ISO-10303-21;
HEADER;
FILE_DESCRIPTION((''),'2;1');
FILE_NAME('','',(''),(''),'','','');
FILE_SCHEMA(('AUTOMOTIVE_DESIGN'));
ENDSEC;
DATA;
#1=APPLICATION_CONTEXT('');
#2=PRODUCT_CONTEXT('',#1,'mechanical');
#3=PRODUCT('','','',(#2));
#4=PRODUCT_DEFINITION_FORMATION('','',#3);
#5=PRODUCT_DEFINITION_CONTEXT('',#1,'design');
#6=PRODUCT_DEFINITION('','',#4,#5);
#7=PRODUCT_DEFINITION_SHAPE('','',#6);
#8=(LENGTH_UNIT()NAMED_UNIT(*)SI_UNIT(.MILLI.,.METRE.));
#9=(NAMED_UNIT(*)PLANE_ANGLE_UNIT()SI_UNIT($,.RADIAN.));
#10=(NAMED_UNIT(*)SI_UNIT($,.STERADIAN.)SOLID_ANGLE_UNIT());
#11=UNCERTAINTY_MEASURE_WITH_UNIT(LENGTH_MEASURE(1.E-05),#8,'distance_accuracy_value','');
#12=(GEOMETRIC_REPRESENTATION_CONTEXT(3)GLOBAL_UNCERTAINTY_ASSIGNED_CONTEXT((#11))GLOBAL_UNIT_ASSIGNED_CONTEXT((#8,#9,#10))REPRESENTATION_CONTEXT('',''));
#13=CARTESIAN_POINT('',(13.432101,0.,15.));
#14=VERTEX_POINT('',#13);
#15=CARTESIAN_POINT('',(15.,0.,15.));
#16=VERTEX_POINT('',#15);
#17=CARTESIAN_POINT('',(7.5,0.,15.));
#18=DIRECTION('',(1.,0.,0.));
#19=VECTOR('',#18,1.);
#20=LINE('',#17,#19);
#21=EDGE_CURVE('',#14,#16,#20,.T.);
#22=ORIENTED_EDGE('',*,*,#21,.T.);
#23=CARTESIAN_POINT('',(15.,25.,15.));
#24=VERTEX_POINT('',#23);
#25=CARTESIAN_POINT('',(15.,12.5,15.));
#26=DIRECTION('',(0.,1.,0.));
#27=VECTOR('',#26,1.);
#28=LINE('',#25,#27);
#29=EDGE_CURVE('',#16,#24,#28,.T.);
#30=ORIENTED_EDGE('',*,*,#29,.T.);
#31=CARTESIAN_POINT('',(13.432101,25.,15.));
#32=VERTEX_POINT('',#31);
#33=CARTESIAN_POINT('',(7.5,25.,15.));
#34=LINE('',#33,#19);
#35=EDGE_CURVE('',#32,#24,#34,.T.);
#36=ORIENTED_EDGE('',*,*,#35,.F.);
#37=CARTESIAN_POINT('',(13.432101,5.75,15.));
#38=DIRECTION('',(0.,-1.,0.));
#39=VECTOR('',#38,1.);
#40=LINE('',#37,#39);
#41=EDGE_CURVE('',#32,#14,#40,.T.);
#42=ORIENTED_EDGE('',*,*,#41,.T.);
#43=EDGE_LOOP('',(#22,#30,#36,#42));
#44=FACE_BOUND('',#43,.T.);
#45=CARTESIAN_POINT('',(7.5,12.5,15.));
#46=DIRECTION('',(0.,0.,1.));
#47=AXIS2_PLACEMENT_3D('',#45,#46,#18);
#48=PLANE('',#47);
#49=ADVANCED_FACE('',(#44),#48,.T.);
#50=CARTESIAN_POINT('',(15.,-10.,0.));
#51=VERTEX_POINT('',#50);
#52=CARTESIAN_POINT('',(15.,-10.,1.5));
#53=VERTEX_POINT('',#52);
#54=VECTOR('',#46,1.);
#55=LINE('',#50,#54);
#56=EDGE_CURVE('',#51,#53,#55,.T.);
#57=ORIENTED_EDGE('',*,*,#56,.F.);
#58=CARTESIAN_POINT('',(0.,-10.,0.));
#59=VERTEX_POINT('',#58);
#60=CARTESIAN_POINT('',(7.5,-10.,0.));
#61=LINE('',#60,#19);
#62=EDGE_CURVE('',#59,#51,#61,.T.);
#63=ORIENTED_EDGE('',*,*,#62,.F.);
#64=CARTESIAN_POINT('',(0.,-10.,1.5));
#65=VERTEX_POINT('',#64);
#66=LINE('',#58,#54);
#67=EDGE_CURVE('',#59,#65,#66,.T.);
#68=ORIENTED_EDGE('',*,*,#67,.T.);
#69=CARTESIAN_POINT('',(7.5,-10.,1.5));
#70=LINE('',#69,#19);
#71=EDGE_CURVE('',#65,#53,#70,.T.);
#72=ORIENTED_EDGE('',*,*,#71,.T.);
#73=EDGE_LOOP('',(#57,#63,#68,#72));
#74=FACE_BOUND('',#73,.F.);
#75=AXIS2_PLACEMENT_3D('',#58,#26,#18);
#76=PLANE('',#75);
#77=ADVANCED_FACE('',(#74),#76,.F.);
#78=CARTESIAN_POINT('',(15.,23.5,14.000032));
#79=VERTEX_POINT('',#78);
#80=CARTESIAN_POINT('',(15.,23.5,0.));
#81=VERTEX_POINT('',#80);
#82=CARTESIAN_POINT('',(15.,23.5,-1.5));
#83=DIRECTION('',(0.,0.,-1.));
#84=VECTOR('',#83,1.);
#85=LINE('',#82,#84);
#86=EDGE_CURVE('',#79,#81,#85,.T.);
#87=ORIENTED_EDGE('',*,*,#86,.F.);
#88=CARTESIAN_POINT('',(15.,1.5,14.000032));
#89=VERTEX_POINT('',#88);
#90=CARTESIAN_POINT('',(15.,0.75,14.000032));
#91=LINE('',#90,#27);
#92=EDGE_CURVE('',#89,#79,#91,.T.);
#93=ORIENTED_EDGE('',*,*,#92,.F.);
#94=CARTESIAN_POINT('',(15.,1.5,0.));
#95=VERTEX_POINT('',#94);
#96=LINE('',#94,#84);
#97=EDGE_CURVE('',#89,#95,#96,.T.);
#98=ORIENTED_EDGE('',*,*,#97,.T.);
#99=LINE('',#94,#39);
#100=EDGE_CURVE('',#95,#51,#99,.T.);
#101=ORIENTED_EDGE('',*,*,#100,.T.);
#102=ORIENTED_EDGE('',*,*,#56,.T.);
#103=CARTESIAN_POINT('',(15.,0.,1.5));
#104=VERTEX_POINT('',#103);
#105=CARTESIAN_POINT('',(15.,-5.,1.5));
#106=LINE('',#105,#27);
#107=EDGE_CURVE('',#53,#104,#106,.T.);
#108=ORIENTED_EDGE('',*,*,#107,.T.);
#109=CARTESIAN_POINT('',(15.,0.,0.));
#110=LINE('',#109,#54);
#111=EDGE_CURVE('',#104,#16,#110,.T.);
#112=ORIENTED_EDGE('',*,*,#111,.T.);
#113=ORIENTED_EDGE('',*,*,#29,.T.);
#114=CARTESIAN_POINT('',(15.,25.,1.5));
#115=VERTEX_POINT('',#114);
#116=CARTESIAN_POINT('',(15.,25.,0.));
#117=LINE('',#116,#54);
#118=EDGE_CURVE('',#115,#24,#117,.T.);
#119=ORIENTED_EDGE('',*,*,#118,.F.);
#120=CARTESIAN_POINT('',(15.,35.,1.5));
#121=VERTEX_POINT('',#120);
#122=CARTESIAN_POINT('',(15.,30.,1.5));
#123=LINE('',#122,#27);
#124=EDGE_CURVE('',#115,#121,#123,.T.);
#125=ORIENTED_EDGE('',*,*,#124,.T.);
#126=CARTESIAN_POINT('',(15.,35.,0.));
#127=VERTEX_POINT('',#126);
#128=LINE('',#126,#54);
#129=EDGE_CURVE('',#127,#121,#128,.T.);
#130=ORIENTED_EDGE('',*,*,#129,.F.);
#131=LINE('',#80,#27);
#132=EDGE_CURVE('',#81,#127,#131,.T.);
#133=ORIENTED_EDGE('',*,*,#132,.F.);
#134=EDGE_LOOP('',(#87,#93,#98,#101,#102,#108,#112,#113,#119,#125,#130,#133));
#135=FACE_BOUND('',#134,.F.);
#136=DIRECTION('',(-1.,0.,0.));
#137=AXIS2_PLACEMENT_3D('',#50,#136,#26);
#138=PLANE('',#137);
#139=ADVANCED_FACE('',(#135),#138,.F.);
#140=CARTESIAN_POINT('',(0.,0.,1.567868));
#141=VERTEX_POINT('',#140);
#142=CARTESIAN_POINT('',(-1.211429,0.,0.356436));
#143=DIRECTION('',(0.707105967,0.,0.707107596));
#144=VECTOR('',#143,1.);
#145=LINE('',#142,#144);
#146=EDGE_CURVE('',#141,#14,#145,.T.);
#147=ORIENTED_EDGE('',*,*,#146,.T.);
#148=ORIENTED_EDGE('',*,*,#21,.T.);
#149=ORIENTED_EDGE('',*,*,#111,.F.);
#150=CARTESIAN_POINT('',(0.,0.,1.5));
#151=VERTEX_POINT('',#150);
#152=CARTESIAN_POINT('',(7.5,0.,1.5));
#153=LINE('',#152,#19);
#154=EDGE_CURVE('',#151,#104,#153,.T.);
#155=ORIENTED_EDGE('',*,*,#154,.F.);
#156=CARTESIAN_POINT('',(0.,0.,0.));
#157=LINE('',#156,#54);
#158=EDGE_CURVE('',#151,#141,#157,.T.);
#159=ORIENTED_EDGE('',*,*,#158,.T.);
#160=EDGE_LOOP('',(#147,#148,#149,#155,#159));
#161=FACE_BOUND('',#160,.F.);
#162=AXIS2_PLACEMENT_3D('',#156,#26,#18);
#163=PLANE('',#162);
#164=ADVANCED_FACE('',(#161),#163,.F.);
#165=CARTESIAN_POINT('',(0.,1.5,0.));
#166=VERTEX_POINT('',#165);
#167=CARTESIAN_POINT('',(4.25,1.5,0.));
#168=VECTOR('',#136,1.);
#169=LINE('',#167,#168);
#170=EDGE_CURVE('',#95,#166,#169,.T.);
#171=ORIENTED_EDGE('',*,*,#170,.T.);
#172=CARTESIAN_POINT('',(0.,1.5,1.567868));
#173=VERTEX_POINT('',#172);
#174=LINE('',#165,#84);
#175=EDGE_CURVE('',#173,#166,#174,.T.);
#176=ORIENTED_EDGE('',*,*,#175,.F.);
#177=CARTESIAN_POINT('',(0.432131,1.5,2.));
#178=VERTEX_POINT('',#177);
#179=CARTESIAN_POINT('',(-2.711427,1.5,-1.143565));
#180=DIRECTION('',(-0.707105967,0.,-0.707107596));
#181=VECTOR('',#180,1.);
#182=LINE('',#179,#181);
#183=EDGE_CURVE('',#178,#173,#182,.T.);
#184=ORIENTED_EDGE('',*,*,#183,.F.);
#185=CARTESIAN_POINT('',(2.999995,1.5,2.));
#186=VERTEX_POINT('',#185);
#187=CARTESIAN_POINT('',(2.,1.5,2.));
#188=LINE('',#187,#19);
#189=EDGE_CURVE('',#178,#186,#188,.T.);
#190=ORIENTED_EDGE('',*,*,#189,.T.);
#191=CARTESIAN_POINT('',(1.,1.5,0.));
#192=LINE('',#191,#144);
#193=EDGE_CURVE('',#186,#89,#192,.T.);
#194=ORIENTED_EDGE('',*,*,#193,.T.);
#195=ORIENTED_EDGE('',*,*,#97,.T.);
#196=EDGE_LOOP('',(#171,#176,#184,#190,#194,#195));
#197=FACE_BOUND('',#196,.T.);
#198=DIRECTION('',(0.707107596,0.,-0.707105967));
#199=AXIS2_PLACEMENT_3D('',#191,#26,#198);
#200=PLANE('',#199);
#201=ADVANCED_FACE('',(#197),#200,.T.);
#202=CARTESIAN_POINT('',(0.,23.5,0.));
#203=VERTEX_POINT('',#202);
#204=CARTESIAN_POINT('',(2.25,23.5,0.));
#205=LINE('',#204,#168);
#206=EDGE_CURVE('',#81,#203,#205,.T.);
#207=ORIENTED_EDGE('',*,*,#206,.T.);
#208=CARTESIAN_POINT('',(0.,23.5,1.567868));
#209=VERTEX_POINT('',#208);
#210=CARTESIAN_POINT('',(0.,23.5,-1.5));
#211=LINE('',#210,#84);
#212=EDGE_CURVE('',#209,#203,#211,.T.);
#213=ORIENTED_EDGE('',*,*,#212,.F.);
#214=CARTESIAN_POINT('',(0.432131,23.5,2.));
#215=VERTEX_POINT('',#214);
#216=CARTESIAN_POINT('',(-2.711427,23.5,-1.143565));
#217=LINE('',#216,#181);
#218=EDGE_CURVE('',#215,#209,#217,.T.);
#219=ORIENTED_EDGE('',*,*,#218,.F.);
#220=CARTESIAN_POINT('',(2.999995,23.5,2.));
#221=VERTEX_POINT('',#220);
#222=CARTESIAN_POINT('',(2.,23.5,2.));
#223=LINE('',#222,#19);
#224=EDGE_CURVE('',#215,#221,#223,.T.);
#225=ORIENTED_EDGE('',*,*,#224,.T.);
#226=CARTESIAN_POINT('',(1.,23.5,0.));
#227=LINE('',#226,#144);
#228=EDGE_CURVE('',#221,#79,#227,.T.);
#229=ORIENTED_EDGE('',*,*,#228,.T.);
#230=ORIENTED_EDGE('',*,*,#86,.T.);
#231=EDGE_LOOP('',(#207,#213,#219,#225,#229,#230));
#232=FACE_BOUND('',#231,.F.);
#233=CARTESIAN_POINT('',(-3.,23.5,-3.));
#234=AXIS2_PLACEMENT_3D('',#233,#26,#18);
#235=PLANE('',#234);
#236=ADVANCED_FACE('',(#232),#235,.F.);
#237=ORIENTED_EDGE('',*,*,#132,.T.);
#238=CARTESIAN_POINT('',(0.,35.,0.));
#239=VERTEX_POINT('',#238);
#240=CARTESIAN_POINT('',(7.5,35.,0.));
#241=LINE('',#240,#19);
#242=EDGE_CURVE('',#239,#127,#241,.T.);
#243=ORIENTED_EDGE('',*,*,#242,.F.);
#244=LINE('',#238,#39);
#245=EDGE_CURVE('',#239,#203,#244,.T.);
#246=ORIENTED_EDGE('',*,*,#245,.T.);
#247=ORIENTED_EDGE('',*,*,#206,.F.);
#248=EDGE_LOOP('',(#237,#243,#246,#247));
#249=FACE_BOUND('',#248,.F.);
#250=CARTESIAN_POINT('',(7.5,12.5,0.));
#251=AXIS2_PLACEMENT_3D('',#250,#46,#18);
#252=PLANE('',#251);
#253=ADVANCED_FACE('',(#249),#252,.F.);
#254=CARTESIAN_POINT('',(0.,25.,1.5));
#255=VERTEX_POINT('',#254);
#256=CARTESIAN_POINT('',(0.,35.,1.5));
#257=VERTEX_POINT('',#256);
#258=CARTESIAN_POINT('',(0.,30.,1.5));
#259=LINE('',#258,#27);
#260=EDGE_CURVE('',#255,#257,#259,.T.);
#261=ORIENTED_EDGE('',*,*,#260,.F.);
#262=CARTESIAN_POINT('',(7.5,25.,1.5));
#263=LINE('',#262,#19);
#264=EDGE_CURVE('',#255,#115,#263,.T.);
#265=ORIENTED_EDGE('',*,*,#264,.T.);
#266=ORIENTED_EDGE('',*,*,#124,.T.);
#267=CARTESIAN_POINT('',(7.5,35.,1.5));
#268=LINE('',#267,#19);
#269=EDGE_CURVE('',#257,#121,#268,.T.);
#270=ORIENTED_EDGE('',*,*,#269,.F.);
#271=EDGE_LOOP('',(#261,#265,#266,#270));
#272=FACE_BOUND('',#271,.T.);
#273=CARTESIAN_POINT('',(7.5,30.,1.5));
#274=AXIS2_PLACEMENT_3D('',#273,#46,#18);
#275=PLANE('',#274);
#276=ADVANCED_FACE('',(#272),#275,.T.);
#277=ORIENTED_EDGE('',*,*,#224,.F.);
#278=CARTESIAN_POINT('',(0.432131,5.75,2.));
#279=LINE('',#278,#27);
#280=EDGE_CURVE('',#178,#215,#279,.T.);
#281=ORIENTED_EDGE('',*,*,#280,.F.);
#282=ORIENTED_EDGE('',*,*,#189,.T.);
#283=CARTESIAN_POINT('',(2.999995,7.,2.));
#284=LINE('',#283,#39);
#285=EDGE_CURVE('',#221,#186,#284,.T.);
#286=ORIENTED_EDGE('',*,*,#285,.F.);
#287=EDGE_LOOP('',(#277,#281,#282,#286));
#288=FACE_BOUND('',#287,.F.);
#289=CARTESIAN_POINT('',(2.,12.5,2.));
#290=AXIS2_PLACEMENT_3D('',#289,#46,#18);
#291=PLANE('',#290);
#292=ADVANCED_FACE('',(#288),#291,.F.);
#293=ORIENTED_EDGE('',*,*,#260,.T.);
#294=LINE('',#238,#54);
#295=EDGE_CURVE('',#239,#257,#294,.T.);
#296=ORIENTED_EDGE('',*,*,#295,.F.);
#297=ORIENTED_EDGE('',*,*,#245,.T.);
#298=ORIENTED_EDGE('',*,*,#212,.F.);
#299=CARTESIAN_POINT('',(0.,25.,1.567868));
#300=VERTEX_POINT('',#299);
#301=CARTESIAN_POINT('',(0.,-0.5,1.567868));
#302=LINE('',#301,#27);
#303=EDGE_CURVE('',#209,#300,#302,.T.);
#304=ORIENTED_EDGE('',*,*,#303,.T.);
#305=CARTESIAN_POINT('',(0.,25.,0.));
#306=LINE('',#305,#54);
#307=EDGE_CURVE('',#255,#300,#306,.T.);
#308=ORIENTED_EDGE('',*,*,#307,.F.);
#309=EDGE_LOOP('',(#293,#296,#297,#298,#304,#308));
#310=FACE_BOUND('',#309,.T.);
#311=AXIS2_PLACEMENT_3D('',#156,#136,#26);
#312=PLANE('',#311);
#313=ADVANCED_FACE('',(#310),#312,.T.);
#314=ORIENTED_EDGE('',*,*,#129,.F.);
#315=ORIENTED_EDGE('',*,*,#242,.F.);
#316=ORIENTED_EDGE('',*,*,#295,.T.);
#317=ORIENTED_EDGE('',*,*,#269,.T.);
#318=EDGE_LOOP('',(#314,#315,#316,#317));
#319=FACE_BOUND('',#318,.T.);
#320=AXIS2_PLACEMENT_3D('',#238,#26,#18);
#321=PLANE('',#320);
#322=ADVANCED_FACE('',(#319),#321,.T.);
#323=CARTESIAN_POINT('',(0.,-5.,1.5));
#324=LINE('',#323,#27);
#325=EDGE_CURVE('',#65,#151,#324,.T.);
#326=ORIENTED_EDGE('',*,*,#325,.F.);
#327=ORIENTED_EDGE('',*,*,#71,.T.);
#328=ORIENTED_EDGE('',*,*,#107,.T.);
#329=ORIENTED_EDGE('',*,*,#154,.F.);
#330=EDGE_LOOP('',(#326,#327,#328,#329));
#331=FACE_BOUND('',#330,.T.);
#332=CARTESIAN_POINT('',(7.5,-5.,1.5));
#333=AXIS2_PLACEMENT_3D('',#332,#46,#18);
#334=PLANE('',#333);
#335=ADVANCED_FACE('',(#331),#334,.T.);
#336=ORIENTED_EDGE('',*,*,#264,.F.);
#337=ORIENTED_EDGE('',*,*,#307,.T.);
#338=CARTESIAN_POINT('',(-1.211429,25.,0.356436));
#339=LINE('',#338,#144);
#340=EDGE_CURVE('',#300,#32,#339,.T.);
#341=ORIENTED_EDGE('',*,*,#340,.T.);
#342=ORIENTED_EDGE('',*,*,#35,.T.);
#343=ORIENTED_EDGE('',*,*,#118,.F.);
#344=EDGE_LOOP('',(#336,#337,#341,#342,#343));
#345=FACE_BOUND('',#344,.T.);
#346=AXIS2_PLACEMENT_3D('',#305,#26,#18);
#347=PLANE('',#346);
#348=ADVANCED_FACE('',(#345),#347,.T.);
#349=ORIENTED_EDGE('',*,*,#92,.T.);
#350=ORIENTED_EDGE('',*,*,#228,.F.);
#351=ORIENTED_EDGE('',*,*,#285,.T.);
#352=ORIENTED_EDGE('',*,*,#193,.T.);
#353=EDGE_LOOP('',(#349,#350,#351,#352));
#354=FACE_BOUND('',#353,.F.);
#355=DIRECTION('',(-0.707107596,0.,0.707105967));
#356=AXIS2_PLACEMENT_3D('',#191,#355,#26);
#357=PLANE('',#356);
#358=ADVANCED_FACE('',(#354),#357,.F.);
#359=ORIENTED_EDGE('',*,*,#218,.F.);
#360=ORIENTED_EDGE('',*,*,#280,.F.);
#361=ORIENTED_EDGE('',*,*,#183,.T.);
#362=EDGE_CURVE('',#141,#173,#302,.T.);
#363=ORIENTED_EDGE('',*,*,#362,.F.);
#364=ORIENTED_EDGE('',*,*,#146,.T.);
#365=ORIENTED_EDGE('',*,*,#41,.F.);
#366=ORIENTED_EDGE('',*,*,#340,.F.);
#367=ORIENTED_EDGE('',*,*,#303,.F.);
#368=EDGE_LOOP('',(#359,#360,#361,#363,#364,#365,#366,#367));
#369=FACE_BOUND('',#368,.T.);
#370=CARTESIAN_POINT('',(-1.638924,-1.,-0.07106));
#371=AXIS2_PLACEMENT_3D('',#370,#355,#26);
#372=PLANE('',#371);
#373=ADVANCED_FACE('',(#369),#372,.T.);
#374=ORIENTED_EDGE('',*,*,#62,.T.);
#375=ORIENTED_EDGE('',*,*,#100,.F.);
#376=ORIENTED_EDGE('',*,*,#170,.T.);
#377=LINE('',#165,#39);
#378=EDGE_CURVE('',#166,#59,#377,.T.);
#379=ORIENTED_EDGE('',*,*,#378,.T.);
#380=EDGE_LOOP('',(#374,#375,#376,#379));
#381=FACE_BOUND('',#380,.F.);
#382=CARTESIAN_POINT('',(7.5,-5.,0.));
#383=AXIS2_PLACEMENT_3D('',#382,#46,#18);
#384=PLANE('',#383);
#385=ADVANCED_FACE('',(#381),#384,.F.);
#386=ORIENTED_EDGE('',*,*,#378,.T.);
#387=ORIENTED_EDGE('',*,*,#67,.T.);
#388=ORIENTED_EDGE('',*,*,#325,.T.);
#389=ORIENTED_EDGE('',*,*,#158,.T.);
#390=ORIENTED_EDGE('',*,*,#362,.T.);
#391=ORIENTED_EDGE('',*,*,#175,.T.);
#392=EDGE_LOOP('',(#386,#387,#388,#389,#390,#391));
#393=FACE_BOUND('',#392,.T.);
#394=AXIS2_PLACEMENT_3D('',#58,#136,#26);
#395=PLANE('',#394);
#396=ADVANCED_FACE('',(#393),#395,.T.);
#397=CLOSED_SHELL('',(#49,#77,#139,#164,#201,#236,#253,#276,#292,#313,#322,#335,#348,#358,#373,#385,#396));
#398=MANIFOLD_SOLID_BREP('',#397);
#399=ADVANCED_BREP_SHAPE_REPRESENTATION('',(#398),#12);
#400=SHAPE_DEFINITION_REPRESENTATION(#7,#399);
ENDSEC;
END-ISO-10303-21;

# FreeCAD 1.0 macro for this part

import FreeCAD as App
import Part
import Sketcher


def add_polygon(sketch, points):
    """Adds a closed chain of lines whose ends are joined by coincident constraints."""
    first, n = sketch.GeometryCount, len(points)
    for a, b in zip(points, points[1:] + points[:1]):
        sketch.addGeometry(Part.LineSegment(App.Vector(*a, 0), App.Vector(*b, 0)), False)
    for i in range(n):
        sketch.addConstraint(Sketcher.Constraint("Coincident", first + i, 2, first + (i + 1) % n, 1))

doc = App.newDocument("Part")
body = doc.addObject("PartDesign::Body", "Body")

# Sketch on XY plane
sketch1 = body.newObject("Sketcher::SketchObject", "Sketch")
sketch1.AttachmentSupport = (doc.getObject("XY_Plane"), [""])
sketch1.MapMode = "FlatFace"
sketch1.AttachmentOffset = App.Placement(App.Vector(0, 0, -3), App.Rotation())
add_polygon(sketch1, [(-3, 23.5), (-3, 1.5), (7, 1.5), (7, 23.5)])  # lines 0-3
sketch1.addConstraint([
    Sketcher.Constraint("Vertical", 0),
    Sketcher.Constraint("Horizontal", 1),
    Sketcher.Constraint("Vertical", 2),
    Sketcher.Constraint("Horizontal", 3),
    Sketcher.Constraint("DistanceX", 1, 1, 1, 2, 10.0),
    Sketcher.Constraint("DistanceY", 0, 2, 0, 1, 22.0),
    Sketcher.Constraint("DistanceX", 0, 2, -1, 1, 3.0),
    Sketcher.Constraint("DistanceY", -1, 1, 0, 2, 1.5),
])
pad1 = body.newObject("PartDesign::Pad", "Pad")
pad1.Profile = sketch1
pad1.Length = 5
body2 = doc.addObject("PartDesign::Body", "Body001")

# Sketch on XY plane
sketch2 = body2.newObject("Sketcher::SketchObject", "Sketch001")
sketch2.AttachmentSupport = (doc.getObject("XY_Plane001"), [""])
sketch2.MapMode = "FlatFace"
add_polygon(sketch2, [(0, 22), (0, 0), (10, 0), (10, 22)])  # lines 0-3
sketch2.addConstraint([
    Sketcher.Constraint("Vertical", 0),
    Sketcher.Constraint("Horizontal", 1),
    Sketcher.Constraint("Vertical", 2),
    Sketcher.Constraint("Horizontal", 3),
    Sketcher.Constraint("Coincident", 0, 2, -1, 1),
    Sketcher.Constraint("DistanceX", 1, 1, 1, 2, 10.0),
    Sketcher.Constraint("DistanceY", 0, 2, 0, 1, 22.0),
])
pad2 = body2.newObject("PartDesign::Pad", "Pad001")
pad2.Profile = sketch2
pad2.Length = 20
body3 = doc.addObject("PartDesign::Body", "Body002")
doc.recompute()

body2.Placement = App.Placement(App.Vector(0, 0, 0), App.Rotation(App.Vector(0, 1, 0), 44.999934))
boolean = body3.newObject("PartDesign::Boolean", "Boolean")
boolean.Type = "Fuse"
boolean.addObjects([body2])
body4 = doc.addObject("PartDesign::Body", "Body003")
doc.recompute()

body3.Placement = App.Placement(App.Vector(1, 1.5, 0), App.Rotation(App.Vector(0, 0, 1), 0))
boolean2 = body4.newObject("PartDesign::Boolean", "Boolean001")
boolean2.Type = "Fuse"
boolean2.addObjects([body3])
body5 = doc.addObject("PartDesign::Body", "Body004")

# Sketch on XY plane
sketch3 = body5.newObject("Sketcher::SketchObject", "Sketch002")
sketch3.AttachmentSupport = (doc.getObject("XY_Plane004"), [""])
sketch3.MapMode = "FlatFace"
add_polygon(sketch3, [(0, 27), (0, 0), (10, 0), (10, 27)])  # lines 0-3
sketch3.addConstraint([
    Sketcher.Constraint("Vertical", 0),
    Sketcher.Constraint("Horizontal", 1),
    Sketcher.Constraint("Vertical", 2),
    Sketcher.Constraint("Horizontal", 3),
    Sketcher.Constraint("Coincident", 0, 2, -1, 1),
    Sketcher.Constraint("DistanceX", 1, 1, 1, 2, 10.0),
    Sketcher.Constraint("DistanceY", 0, 2, 0, 1, 27.0),
])
pad3 = body5.newObject("PartDesign::Pad", "Pad002")
pad3.Profile = sketch3
pad3.Length = 22
body6 = doc.addObject("PartDesign::Body", "Body005")
doc.recompute()

body5.Placement = App.Placement(App.Vector(0, 0, 0), App.Rotation(App.Vector(0, 1, 0), 44.999934))
boolean3 = body6.newObject("PartDesign::Boolean", "Boolean002")
boolean3.Type = "Fuse"
boolean3.addObjects([body5])
body7 = doc.addObject("PartDesign::Body", "Body006")
doc.recompute()

body6.Placement = App.Placement(App.Vector(-8.71, -1, 7), App.Rotation(App.Vector(0, 0, 1), 0))
boolean4 = body7.newObject("PartDesign::Boolean", "Boolean003")
boolean4.Type = "Fuse"
boolean4.addObjects([body6])
doc.recompute()

boolean5 = body7.newObject("PartDesign::Boolean", "Boolean004")
boolean5.Type = "Fuse"
boolean5.addObjects([body])
doc.recompute()

boolean6 = body7.newObject("PartDesign::Boolean", "Boolean005")
boolean6.Type = "Fuse"
boolean6.addObjects([body4])
body8 = doc.addObject("PartDesign::Body", "Body007")

# Sketch on XY plane
sketch4 = body8.newObject("Sketcher::SketchObject", "Sketch003")
sketch4.AttachmentSupport = (doc.getObject("XY_Plane007"), [""])
sketch4.MapMode = "FlatFace"
add_polygon(sketch4, [(0, 25), (0, 0), (15, 0), (15, 25)])  # lines 0-3
sketch4.addConstraint([
    Sketcher.Constraint("Vertical", 0),
    Sketcher.Constraint("Horizontal", 1),
    Sketcher.Constraint("Vertical", 2),
    Sketcher.Constraint("Horizontal", 3),
    Sketcher.Constraint("Coincident", 0, 2, -1, 1),
    Sketcher.Constraint("DistanceX", 1, 1, 1, 2, 15.0),
    Sketcher.Constraint("DistanceY", 0, 2, 0, 1, 25.0),
])
pad4 = body8.newObject("PartDesign::Pad", "Pad003")
pad4.Profile = sketch4
pad4.Length = 15
doc.recompute()

boolean7 = body8.newObject("PartDesign::Boolean", "Boolean006")
boolean7.Type = "Cut"
boolean7.addObjects([body7])
body9 = doc.addObject("PartDesign::Body", "Body008")

# Sketch on XY plane
sketch5 = body9.newObject("Sketcher::SketchObject", "Sketch004")
sketch5.AttachmentSupport = (doc.getObject("XY_Plane008"), [""])
sketch5.MapMode = "FlatFace"
add_polygon(sketch5, [(0, 0), (0, -10), (15, -10), (15, 0)])  # lines 0-3
sketch5.addConstraint([
    Sketcher.Constraint("Vertical", 0),
    Sketcher.Constraint("Horizontal", 1),
    Sketcher.Constraint("Vertical", 2),
    Sketcher.Constraint("Horizontal", 3),
    Sketcher.Constraint("Coincident", 3, 2, -1, 1),
    Sketcher.Constraint("DistanceX", 1, 1, 1, 2, 15.0),
    Sketcher.Constraint("DistanceY", 0, 2, 0, 1, 10.0),
])
pad5 = body9.newObject("PartDesign::Pad", "Pad004")
pad5.Profile = sketch5
pad5.Length = 1.5
body10 = doc.addObject("PartDesign::Body", "Body009")

# Sketch on XY plane
sketch6 = body10.newObject("Sketcher::SketchObject", "Sketch005")
sketch6.AttachmentSupport = (doc.getObject("XY_Plane009"), [""])
sketch6.MapMode = "FlatFace"
add_polygon(sketch6, [(0, 35), (0, 25), (15, 25), (15, 35)])  # lines 0-3
sketch6.addConstraint([
    Sketcher.Constraint("Vertical", 0),
    Sketcher.Constraint("Horizontal", 1),
    Sketcher.Constraint("Vertical", 2),
    Sketcher.Constraint("Horizontal", 3),
    Sketcher.Constraint("PointOnObject", 0, 2, -2),
    Sketcher.Constraint("DistanceX", 1, 1, 1, 2, 15.0),
    Sketcher.Constraint("DistanceY", 0, 2, 0, 1, 10.0),
    Sketcher.Constraint("DistanceY", -1, 1, 0, 2, 25.0),
])
pad6 = body10.newObject("PartDesign::Pad", "Pad005")
pad6.Profile = sketch6
pad6.Length = 1.5
doc.recompute()

boolean8 = body10.newObject("PartDesign::Boolean", "Boolean007")
boolean8.Type = "Fuse"
boolean8.addObjects([body8])
doc.recompute()

boolean9 = body10.newObject("PartDesign::Boolean", "Boolean008")
boolean9.Type = "Fuse"
boolean9.addObjects([body9])

doc.recompute()
